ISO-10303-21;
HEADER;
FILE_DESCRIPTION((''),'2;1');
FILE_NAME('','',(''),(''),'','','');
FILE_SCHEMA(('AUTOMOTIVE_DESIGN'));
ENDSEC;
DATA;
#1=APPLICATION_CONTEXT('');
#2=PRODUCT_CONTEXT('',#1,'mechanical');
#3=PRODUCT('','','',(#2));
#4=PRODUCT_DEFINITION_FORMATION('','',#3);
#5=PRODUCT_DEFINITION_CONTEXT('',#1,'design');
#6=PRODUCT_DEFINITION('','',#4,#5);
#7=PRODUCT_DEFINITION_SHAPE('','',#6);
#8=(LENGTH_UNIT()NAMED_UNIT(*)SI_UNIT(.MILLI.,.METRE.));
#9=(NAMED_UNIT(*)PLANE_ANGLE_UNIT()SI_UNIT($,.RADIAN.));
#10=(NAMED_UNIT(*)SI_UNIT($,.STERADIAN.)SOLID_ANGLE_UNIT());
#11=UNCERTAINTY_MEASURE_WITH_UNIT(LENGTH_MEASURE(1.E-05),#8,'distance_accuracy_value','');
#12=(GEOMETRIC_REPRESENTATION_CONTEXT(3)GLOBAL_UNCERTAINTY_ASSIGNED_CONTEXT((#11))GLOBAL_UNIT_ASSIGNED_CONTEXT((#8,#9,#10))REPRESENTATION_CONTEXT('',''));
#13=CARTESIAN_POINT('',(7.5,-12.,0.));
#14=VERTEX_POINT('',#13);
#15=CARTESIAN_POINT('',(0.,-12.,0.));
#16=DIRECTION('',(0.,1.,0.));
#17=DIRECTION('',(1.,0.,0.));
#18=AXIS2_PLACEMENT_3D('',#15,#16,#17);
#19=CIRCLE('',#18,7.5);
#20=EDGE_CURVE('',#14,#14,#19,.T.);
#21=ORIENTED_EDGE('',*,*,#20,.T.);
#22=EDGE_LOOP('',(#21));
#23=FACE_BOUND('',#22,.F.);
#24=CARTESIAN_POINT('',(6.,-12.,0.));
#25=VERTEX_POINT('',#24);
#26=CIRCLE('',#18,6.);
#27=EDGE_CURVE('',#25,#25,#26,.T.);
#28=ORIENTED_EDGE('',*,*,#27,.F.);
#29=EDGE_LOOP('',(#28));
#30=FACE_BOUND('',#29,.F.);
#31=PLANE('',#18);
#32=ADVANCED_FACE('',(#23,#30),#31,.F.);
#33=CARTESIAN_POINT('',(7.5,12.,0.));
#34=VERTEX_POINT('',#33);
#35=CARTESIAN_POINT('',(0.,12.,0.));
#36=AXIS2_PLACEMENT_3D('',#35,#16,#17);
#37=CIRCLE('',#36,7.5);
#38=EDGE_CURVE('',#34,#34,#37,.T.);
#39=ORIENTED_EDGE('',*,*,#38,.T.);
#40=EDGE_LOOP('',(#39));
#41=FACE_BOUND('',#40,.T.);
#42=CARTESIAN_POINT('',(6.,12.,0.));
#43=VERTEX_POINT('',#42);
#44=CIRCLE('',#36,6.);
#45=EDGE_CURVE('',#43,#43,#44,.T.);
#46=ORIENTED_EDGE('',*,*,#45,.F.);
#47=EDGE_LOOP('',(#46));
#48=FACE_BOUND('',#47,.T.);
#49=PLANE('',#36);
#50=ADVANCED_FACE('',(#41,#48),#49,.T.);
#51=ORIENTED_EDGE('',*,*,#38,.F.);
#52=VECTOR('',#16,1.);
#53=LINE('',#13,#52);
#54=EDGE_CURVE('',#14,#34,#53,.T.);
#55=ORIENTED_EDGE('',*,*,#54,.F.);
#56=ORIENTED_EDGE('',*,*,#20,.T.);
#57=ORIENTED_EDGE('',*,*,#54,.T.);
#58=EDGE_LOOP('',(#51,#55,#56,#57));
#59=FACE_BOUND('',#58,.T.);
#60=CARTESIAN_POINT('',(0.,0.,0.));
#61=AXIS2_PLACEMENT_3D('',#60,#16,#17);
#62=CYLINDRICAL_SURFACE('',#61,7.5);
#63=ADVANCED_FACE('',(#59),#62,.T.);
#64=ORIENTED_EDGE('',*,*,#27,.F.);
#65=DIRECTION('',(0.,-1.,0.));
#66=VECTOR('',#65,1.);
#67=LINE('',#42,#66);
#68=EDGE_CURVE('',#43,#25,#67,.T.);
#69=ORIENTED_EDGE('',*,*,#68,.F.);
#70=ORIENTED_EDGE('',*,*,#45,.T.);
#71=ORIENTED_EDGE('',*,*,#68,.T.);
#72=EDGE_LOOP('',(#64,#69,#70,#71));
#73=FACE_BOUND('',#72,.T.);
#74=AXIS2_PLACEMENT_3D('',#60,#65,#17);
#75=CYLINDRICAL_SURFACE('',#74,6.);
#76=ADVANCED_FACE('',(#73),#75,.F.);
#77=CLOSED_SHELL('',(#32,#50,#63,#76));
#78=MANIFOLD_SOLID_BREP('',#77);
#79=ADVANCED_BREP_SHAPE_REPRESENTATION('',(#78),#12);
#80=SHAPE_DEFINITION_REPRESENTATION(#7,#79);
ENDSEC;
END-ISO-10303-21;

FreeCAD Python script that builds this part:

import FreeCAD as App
import Part
import Sketcher

doc = App.newDocument("Part")
body = doc.addObject("PartDesign::Body", "Body")

# Sketch on XZ plane
sketch1 = body.newObject("Sketcher::SketchObject", "Sketch")
sketch1.AttachmentSupport = (doc.getObject("XZ_Plane"), [""])
sketch1.MapMode = "FlatFace"
sketch1.addGeometry(Part.Circle(App.Vector(0, 0, 0), App.Vector(0, 0, 1), 8), False)
sketch1.addGeometry(Part.Circle(App.Vector(0, 0, 0), App.Vector(0, 0, 1), 6), False)
sketch1.addConstraint(Sketcher.Constraint("Coincident", 0, 3, -1, 1))
sketch1.addConstraint(Sketcher.Constraint("Coincident", 1, 3, -1, 1))
sketch1.addConstraint(Sketcher.Constraint("Diameter", 0, 15.0))
sketch1.addConstraint(Sketcher.Constraint("Diameter", 1, 12.0))
pad1 = body.newObject("PartDesign::Pad", "Pad")
pad1.Profile = sketch1
pad1.Length = 24
pad1.Midplane = True

doc.recompute()
